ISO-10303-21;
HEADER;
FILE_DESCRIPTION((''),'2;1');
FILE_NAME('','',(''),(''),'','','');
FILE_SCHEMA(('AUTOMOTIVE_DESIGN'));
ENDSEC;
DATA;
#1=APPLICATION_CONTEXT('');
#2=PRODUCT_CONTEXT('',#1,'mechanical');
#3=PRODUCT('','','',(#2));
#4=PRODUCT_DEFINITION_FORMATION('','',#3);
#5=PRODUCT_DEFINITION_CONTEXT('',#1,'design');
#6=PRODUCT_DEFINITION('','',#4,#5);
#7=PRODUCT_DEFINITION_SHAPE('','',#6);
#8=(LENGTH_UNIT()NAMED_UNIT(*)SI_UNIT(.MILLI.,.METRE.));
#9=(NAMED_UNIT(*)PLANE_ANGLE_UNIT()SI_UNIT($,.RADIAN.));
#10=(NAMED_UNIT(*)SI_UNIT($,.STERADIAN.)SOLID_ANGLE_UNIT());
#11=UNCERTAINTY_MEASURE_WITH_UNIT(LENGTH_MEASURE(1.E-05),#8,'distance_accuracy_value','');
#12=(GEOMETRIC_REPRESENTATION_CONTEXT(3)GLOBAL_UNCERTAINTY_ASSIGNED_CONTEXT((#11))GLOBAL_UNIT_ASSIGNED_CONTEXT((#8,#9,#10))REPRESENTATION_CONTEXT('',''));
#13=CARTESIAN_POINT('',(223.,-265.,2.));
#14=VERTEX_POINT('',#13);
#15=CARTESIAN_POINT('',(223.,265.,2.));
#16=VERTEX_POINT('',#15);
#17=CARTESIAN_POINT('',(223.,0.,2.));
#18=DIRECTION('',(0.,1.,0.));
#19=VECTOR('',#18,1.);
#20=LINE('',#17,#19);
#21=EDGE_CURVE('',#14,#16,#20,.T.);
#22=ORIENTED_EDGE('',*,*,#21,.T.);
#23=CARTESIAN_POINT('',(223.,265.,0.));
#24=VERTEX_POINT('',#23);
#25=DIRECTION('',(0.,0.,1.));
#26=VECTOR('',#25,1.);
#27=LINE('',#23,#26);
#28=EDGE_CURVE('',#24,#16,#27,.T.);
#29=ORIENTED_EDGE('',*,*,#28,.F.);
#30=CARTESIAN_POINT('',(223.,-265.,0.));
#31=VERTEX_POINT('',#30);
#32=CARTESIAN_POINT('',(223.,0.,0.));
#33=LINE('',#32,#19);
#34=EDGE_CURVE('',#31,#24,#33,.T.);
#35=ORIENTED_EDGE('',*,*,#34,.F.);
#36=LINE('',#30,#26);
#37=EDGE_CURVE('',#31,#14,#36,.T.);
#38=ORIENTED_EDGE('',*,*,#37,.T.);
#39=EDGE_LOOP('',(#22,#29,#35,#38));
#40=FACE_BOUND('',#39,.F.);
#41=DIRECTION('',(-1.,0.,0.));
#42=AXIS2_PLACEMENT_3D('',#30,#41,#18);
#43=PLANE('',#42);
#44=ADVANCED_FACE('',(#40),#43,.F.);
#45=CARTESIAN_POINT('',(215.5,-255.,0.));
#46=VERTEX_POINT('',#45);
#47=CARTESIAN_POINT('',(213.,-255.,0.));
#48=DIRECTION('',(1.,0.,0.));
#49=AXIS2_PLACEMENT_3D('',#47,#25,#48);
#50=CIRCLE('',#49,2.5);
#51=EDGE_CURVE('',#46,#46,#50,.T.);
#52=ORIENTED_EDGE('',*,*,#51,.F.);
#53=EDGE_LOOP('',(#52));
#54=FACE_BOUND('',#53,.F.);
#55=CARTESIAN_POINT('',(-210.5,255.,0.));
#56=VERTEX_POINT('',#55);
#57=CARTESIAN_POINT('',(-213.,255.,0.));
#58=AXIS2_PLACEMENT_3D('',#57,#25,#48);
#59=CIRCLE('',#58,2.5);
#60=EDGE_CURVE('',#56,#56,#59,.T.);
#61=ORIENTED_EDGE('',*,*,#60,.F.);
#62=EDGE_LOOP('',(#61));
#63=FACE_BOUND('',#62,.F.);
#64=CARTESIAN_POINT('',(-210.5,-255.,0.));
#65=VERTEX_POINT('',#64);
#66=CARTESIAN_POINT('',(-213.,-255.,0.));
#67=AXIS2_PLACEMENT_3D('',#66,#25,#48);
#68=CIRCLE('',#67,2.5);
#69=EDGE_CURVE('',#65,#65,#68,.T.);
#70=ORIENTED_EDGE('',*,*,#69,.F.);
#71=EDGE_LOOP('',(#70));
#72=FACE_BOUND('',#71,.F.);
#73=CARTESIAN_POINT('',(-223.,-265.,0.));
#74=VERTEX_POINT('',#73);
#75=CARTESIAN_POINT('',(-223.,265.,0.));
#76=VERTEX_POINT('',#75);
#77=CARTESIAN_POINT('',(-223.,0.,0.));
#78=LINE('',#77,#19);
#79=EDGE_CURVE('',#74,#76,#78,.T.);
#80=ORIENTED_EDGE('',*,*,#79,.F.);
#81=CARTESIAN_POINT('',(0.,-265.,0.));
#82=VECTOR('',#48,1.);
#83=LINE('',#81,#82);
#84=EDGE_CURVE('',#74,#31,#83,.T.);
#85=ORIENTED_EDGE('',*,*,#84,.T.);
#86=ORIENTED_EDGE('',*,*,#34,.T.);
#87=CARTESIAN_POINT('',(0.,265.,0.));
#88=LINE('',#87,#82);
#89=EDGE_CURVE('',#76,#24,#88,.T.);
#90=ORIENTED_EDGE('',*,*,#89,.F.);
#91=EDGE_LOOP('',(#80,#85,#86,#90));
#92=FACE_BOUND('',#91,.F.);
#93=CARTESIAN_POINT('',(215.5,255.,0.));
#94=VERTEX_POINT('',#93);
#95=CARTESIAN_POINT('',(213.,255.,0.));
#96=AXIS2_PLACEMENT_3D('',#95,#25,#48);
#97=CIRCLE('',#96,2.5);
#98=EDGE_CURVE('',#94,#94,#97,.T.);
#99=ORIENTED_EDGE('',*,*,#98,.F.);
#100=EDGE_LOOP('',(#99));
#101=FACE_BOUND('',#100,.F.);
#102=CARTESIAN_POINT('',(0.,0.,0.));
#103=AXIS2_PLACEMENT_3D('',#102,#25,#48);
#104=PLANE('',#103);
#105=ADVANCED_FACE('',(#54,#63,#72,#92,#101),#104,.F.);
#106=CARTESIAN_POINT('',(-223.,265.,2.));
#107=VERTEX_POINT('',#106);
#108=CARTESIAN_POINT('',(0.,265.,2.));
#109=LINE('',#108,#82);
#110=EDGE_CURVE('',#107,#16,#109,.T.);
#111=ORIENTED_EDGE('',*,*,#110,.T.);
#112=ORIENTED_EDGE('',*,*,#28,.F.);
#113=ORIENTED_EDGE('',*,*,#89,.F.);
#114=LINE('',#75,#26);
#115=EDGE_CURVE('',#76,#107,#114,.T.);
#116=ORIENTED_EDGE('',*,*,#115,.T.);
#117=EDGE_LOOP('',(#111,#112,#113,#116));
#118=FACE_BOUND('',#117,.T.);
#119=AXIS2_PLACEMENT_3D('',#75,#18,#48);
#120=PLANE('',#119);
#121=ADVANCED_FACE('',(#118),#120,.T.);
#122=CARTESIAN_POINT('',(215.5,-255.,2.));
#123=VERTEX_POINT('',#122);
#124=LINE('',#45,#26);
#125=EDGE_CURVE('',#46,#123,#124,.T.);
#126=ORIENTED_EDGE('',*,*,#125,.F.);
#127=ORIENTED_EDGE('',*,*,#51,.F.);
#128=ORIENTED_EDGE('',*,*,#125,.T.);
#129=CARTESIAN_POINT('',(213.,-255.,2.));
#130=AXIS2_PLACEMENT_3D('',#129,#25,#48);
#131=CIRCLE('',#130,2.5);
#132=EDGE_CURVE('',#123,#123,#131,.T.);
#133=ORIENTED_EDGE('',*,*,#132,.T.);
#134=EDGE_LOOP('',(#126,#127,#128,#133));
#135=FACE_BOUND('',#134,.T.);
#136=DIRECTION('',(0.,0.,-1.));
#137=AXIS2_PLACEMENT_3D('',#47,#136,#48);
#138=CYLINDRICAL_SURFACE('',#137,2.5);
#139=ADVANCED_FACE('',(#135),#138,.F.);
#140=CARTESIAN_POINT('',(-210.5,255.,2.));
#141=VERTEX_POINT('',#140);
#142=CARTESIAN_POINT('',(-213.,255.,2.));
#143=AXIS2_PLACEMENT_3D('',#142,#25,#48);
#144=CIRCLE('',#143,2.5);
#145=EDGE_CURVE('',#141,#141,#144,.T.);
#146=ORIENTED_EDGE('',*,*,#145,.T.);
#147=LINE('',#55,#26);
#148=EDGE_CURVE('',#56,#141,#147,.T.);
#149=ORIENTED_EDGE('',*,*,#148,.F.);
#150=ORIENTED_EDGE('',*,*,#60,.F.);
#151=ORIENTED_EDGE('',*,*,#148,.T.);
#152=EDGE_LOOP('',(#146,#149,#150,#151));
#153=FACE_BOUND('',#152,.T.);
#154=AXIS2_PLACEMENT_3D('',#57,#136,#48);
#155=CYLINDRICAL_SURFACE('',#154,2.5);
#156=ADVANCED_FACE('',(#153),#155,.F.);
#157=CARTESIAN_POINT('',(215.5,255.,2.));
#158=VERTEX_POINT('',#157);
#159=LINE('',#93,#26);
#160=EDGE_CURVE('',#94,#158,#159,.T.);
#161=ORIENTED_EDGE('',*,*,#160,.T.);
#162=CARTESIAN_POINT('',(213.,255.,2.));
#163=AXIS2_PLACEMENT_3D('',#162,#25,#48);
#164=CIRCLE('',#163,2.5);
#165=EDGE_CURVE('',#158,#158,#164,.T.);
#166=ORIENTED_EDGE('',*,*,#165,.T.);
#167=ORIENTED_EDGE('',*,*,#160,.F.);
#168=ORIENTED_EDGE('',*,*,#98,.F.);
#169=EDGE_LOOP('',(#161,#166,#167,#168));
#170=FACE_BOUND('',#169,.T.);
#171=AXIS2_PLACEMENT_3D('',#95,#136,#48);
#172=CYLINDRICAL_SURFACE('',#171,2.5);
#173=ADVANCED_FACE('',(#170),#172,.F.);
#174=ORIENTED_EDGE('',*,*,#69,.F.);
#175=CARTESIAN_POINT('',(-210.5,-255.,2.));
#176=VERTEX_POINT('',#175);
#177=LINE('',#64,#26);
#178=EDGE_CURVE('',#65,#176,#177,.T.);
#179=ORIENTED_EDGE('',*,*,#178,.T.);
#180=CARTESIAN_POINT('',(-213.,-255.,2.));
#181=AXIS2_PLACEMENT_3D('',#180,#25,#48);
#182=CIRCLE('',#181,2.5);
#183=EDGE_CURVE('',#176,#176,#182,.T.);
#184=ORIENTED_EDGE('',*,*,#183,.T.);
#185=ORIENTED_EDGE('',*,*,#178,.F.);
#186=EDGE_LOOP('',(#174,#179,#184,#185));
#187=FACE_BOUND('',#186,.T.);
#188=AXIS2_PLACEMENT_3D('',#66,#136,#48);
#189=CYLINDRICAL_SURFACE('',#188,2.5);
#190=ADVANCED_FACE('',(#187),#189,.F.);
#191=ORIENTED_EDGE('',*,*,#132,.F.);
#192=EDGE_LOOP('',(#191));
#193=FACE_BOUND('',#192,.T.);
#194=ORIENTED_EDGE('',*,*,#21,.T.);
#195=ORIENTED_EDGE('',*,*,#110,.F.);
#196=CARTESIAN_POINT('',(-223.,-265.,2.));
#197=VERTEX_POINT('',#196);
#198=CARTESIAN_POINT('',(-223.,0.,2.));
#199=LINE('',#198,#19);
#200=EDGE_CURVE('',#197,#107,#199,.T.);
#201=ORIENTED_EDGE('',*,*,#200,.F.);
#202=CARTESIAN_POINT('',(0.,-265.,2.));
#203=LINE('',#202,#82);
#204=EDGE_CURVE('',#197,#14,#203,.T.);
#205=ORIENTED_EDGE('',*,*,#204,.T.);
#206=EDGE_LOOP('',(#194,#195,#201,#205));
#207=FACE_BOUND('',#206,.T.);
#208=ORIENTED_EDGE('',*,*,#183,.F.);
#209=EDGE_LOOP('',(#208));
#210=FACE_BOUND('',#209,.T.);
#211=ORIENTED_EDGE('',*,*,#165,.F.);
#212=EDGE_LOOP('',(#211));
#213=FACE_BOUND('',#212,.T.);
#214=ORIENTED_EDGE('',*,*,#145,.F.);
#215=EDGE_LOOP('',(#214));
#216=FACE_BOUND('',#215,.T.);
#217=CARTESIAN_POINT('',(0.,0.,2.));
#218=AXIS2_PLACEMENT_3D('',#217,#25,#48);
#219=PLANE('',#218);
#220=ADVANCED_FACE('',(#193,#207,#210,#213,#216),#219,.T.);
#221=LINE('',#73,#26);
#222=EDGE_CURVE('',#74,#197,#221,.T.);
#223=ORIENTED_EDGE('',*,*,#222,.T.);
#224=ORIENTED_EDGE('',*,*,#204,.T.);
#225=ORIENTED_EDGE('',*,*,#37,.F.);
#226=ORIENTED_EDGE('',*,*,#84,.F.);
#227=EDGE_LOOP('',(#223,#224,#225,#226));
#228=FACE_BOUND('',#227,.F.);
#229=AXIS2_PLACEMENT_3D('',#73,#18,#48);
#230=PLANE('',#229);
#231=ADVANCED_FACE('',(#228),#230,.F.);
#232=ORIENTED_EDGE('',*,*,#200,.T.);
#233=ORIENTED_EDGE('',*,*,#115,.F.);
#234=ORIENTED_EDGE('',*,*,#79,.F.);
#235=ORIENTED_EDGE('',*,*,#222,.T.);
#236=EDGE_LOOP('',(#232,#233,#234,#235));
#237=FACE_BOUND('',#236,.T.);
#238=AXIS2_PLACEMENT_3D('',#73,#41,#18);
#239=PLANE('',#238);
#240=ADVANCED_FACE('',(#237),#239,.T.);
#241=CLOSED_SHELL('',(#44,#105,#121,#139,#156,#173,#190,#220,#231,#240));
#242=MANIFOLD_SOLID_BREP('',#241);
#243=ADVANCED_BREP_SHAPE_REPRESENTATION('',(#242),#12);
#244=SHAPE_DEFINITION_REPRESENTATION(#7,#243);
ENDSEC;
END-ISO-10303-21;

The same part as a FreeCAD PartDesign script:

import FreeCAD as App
import Part
import Sketcher
from FreeCAD import Vector

doc = App.newDocument("Part")
body = doc.addObject("PartDesign::Body", "Body")

# Sketch on XY plane
sketch1 = doc.addObject("Sketcher::SketchObject", "Sketch")
body.addObject(sketch1)
sketch1.AttachmentSupport = (doc.XY_Plane, [""])
sketch1.MapMode = "FlatFace"
sketch1.addGeometry(Part.LineSegment(Vector(-223, 265, 0), Vector(-223, -265, 0)), False)
sketch1.addGeometry(Part.LineSegment(Vector(-223, -265, 0), Vector(223, -265, 0)), False)
sketch1.addGeometry(Part.LineSegment(Vector(223, -265, 0), Vector(223, 265, 0)), False)
sketch1.addGeometry(Part.LineSegment(Vector(223, 265, 0), Vector(-223, 265, 0)), False)
sketch1.addGeometry(Part.Circle(Vector(-213, -255, 0), Vector(0, 0, 1), 2.5), False)
sketch1.addGeometry(Part.Circle(Vector(213, -255, 0), Vector(0, 0, 1), 2.5), False)
sketch1.addGeometry(Part.Circle(Vector(-213, 255, 0), Vector(0, 0, 1), 2.5), False)
sketch1.addGeometry(Part.Circle(Vector(213, 255, 0), Vector(0, 0, 1), 2.5), False)
sketch1.addConstraint(Sketcher.Constraint("Coincident", 0, 2, 1, 1))
sketch1.addConstraint(Sketcher.Constraint("Coincident", 1, 2, 2, 1))
sketch1.addConstraint(Sketcher.Constraint("Coincident", 2, 2, 3, 1))
sketch1.addConstraint(Sketcher.Constraint("Coincident", 3, 2, 0, 1))
sketch1.addConstraint(Sketcher.Constraint("Vertical", 0))
sketch1.addConstraint(Sketcher.Constraint("Horizontal", 1))
sketch1.addConstraint(Sketcher.Constraint("Vertical", 2))
sketch1.addConstraint(Sketcher.Constraint("Horizontal", 3))
sketch1.addConstraint(Sketcher.Constraint("Equal", 4, 5))
sketch1.addConstraint(Sketcher.Constraint("Equal", 5, 6))
sketch1.addConstraint(Sketcher.Constraint("Equal", 6, 7))
sketch1.addConstraint(Sketcher.Constraint("Symmetric", 5, 3, 6, 3, -1, 1))
sketch1.addConstraint(Sketcher.Constraint("Symmetric", 4, 3, 7, 3, -1, 1))
sketch1.addConstraint(Sketcher.Constraint("Symmetric", 0, 2, 2, 2, -1, 1))
sketch1.addConstraint(Sketcher.Constraint("Symmetric", 4, 3, 5, 3, -2))
sketch1.addConstraint(Sketcher.Constraint("Diameter", 4, 5.0))
sketch1.addConstraint(Sketcher.Constraint("DistanceX", 1, 1, 1, 2, 446.0))
sketch1.addConstraint(Sketcher.Constraint("DistanceY", 0, 2, 0, 1, 530.0))
sketch1.addConstraint(Sketcher.Constraint("DistanceX", 4, 3, -1, 1, 213.0))
sketch1.addConstraint(Sketcher.Constraint("DistanceY", 4, 3, -1, 1, 255.0))
pad1 = doc.addObject("PartDesign::Pad", "Pad")
body.addObject(pad1)
pad1.Profile = sketch1
pad1.Length = 2

doc.recompute()
